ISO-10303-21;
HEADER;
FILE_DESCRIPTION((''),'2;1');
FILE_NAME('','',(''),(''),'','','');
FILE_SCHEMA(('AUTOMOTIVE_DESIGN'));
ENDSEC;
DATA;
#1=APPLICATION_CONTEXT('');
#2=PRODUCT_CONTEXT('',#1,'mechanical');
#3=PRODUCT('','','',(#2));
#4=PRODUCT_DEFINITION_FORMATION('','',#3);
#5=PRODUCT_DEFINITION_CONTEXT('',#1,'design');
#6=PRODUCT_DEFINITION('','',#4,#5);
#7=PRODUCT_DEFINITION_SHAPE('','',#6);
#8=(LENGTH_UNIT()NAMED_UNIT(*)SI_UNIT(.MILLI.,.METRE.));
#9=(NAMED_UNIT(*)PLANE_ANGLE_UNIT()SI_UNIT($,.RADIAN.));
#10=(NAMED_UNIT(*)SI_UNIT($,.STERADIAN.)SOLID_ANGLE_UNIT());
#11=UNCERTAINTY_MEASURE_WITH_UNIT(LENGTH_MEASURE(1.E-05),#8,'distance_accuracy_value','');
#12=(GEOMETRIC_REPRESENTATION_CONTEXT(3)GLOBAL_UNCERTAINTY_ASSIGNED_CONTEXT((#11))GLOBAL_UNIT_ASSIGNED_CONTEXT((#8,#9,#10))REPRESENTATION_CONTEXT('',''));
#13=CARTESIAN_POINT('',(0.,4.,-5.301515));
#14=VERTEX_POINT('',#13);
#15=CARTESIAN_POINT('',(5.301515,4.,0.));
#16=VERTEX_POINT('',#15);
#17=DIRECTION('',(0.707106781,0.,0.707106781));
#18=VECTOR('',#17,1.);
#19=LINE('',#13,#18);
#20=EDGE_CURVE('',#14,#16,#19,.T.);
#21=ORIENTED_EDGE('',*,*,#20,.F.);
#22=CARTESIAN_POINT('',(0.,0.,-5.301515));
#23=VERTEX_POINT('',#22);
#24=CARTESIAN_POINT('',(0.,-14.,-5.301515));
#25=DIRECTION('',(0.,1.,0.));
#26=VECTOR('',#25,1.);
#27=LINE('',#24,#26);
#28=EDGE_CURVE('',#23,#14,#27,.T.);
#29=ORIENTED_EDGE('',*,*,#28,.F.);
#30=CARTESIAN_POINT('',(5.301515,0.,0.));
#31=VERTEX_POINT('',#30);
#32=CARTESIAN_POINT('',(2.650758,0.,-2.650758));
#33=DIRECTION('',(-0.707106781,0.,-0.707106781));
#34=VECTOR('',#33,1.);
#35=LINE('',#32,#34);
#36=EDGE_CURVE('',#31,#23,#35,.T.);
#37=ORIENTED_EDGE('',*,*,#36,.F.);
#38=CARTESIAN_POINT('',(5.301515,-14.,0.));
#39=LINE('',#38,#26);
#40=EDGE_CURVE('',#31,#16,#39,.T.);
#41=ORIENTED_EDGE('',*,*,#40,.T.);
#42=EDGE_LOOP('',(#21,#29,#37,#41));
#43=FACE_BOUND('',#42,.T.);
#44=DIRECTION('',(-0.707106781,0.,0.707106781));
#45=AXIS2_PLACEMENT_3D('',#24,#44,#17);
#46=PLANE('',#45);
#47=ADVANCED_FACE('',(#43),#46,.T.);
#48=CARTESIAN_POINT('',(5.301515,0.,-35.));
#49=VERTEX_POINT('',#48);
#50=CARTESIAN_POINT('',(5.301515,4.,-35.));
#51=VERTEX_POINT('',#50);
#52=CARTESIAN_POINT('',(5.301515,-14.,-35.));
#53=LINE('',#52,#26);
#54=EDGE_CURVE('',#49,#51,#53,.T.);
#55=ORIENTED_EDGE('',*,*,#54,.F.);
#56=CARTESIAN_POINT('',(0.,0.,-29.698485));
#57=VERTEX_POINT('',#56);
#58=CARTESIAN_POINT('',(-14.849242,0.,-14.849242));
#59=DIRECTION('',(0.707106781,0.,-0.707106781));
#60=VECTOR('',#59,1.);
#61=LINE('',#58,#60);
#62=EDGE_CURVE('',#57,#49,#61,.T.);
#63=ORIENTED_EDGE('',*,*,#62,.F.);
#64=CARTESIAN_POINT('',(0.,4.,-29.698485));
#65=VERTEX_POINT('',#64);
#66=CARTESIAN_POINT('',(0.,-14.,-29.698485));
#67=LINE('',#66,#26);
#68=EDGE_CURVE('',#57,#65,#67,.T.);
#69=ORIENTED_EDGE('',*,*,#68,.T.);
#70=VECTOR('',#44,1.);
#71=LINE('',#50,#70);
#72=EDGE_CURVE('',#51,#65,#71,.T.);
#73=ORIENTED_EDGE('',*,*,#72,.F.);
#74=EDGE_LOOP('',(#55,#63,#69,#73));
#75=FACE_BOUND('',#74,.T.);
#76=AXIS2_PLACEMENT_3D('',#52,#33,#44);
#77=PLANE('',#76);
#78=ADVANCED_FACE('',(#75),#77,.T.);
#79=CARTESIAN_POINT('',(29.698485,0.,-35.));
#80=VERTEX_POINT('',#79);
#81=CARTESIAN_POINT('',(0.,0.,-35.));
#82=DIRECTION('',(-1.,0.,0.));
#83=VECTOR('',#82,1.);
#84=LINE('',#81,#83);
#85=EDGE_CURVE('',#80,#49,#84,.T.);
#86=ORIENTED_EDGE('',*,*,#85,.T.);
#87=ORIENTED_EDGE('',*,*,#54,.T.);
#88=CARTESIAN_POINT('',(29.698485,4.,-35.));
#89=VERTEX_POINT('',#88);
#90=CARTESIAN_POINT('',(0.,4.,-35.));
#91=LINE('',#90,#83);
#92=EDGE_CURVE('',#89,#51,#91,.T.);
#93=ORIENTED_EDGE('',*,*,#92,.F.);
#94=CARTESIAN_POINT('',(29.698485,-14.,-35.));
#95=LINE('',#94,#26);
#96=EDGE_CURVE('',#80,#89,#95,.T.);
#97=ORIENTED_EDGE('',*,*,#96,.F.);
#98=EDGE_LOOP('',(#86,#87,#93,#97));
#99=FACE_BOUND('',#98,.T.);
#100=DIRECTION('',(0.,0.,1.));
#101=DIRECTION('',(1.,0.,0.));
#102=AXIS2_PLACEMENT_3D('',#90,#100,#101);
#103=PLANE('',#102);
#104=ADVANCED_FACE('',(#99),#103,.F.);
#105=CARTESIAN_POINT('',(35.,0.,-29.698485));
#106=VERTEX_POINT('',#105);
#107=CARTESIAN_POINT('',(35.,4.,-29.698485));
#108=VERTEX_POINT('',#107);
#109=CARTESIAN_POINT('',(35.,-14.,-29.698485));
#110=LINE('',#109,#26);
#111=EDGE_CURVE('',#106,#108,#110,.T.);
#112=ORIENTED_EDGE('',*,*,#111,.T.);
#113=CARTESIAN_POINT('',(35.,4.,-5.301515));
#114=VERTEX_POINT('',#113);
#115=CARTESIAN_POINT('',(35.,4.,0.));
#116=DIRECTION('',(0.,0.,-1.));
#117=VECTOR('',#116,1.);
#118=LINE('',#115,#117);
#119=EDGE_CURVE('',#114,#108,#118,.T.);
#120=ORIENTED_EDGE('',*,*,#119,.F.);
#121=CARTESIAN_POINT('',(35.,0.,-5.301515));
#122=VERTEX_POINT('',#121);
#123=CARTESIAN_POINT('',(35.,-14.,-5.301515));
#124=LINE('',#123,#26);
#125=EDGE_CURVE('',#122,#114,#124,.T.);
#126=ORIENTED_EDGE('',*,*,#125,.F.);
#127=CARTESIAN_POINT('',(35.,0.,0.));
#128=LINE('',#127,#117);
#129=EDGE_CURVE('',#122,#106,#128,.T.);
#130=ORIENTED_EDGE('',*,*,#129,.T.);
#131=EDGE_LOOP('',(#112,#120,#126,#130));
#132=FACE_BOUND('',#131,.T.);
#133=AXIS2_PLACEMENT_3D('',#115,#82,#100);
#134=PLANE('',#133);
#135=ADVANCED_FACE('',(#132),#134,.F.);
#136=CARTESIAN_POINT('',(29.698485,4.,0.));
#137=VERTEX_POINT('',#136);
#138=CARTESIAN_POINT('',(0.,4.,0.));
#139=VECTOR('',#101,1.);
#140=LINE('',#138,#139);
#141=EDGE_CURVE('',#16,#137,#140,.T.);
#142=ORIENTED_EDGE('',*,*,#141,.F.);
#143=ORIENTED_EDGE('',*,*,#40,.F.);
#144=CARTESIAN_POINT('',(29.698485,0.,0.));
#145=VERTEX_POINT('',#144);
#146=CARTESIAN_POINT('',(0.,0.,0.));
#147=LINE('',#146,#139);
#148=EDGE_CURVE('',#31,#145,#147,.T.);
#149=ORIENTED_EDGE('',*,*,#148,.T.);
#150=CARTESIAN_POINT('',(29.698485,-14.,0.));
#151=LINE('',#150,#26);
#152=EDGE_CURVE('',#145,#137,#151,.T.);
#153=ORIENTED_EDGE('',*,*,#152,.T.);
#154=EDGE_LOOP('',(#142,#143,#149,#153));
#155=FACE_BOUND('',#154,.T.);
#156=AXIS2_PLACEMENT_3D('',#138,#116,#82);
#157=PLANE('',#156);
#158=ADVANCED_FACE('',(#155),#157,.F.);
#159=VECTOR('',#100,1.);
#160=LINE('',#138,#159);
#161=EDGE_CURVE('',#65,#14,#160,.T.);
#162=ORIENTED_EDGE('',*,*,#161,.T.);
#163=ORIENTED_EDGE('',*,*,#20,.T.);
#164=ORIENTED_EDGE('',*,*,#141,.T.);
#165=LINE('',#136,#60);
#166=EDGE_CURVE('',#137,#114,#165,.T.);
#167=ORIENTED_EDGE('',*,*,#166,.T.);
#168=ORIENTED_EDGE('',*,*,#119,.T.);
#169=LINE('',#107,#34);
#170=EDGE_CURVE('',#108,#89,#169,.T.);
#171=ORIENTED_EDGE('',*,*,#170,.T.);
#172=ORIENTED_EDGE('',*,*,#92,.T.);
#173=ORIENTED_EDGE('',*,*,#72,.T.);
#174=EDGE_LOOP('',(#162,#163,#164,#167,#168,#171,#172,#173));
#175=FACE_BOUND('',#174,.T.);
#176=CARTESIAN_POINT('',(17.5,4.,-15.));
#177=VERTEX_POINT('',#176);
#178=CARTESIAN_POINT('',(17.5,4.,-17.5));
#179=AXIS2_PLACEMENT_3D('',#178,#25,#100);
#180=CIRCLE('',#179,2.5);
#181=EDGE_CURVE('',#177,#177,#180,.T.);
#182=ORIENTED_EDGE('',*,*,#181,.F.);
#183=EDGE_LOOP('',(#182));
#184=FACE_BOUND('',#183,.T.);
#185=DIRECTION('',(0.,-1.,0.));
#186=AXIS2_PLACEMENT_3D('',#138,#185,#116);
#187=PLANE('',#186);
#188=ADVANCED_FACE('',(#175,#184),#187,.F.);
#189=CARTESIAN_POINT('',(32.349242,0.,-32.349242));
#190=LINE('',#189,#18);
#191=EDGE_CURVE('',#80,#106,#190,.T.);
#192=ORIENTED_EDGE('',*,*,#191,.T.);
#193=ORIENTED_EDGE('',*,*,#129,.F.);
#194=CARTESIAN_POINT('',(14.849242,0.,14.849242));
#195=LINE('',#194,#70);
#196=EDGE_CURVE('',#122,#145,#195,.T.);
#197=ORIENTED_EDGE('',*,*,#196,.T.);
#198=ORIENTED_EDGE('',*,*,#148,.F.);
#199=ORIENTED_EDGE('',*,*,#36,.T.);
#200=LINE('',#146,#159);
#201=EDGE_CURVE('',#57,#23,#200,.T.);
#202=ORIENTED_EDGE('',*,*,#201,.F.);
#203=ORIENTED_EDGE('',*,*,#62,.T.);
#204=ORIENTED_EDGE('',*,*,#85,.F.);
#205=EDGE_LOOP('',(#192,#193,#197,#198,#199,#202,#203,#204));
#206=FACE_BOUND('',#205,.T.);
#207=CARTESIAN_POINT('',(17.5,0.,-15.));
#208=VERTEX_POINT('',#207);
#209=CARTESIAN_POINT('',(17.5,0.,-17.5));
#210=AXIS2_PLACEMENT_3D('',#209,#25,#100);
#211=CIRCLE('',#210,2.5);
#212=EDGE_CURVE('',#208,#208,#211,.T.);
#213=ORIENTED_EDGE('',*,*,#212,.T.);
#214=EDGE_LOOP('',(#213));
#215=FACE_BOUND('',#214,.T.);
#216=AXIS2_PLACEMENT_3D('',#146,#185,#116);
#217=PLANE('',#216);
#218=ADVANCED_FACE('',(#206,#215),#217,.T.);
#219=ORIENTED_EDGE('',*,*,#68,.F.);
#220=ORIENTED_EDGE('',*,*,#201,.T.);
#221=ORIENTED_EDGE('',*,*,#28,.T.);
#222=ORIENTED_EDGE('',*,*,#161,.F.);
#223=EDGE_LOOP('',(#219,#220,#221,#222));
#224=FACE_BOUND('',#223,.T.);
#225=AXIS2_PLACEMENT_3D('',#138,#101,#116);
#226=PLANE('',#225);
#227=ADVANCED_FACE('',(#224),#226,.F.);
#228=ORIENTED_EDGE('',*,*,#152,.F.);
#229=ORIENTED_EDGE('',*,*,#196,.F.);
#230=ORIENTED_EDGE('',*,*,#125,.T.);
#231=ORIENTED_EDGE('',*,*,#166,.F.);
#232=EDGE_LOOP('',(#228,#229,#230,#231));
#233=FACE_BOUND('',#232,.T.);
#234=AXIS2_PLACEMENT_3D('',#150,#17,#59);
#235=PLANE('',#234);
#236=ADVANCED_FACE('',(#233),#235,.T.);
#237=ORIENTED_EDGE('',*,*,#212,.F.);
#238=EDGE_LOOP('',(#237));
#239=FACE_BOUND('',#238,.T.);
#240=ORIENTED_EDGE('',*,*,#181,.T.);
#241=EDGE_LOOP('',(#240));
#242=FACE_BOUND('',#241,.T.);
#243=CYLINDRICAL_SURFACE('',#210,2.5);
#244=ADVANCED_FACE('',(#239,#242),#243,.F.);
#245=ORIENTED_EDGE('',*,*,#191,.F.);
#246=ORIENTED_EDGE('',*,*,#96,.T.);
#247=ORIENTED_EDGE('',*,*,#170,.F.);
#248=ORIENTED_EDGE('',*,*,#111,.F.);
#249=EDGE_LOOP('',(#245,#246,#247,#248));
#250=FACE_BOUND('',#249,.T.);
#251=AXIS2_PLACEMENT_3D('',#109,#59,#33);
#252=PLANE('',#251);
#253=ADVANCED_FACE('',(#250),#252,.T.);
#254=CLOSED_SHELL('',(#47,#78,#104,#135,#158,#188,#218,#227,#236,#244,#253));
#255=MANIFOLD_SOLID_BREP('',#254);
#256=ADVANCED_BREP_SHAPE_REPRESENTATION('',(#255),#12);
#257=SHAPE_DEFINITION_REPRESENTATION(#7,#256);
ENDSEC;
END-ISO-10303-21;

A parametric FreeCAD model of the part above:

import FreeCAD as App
import Part
import Sketcher

V = App.Vector


def add_polygon(sketch, points):
    """Adds a closed chain of lines whose ends are joined by coincident constraints."""
    first, n = sketch.GeometryCount, len(points)
    for a, b in zip(points, points[1:] + points[:1]):
        sketch.addGeometry(Part.LineSegment(App.Vector(*a, 0), App.Vector(*b, 0)), False)
    for i in range(n):
        sketch.addConstraint(Sketcher.Constraint("Coincident", first + i, 2, first + (i + 1) % n, 1))

doc = App.newDocument("Part")
body = doc.addObject("PartDesign::Body", "Body")

# Sketch on XZ plane
sketch1 = doc.addObject("Sketcher::SketchObject", "Sketch")
body.addObject(sketch1)
sketch1.AttachmentSupport = (doc.XZ_Plane, [""])
sketch1.MapMode = "FlatFace"
add_polygon(sketch1, [(0, -35), (0, 0), (35, 0), (35, -35)])  # lines 0-3
sketch1.addConstraint([
    Sketcher.Constraint("Vertical", 0),
    Sketcher.Constraint("Horizontal", 1),
    Sketcher.Constraint("Vertical", 2),
    Sketcher.Constraint("Horizontal", 3),
    Sketcher.Constraint("Coincident", 0, 2, -1, 1),
    Sketcher.Constraint("Equal", 3, 0),
    Sketcher.Constraint("DistanceX", 1, 1, 1, 2, 35.0),
])
pad1 = doc.addObject("PartDesign::Pad", "Pad")
body.addObject(pad1)
pad1.Profile = sketch1
pad1.Length = 4
pad1.Reversed = True

# Sketch on XZ plane
sketch2 = doc.addObject("Sketcher::SketchObject", "Sketch001")
body.addObject(sketch2)
sketch2.AttachmentSupport = (doc.XZ_Plane, [""])
sketch2.MapMode = "FlatFace"
sketch2.AttachmentOffset = App.Placement(V(0, 0, -4), App.Rotation())
add_polygon(sketch2, [(-6, -41), (-6, 6), (41, 6), (41, -41)])  # lines 0-3
add_polygon(sketch2, [(0, -30), (5, -35), (30, -35), (35, -30), (35, -5), (30, 0), (5, 0), (0, -5)])  # lines 4-11
sketch2.addConstraint([
    Sketcher.Constraint("Vertical", 0),
    Sketcher.Constraint("Horizontal", 1),
    Sketcher.Constraint("Vertical", 2),
    Sketcher.Constraint("Horizontal", 3),
    Sketcher.Constraint("Horizontal", 5),
    Sketcher.Constraint("Vertical", 7),
    Sketcher.Constraint("Horizontal", 9),
    Sketcher.Constraint("Vertical", 11),
    Sketcher.Constraint("PointOnObject", 8, 2, -1),
    Sketcher.Constraint("PointOnObject", 10, 2, -2),
    Sketcher.Constraint("Perpendicular", 4, 6),
    Sketcher.Constraint("Perpendicular", 6, 8),
    Sketcher.Constraint("Perpendicular", 8, 10),
    Sketcher.Constraint("Horizontal", 7, 2, 10, 2),
    Sketcher.Constraint("Horizontal", 6, 2, 11, 2),
    Sketcher.Constraint("Vertical", 5, 2, 8, 2),
    Sketcher.Constraint("Vertical", 4, 2, 9, 2),
    Sketcher.Constraint("Equal", 3, 0),
    Sketcher.Constraint("Equal", 9, 7),
    Sketcher.Constraint("DistanceY", 4, 2, -1, 1, 35.0),
    Sketcher.Constraint("DistanceX", 1, 1, 1, 2, 46.932),
    Sketcher.Constraint("DistanceX", 0, 2, -1, 1, 5.966),
    Sketcher.Constraint("DistanceY", -1, 1, 0, 2, 5.966),
    Sketcher.Constraint("DistanceX", 5, 1, 5, 2, 24.39697),
])
pocket1 = doc.addObject("PartDesign::Pocket", "Pocket")
body.addObject(pocket1)
pocket1.Profile = sketch2
pocket1.Length = 18
pocket1.Reversed = True

# Sketch on XZ plane
sketch3 = doc.addObject("Sketcher::SketchObject", "Sketch002")
body.addObject(sketch3)
sketch3.AttachmentSupport = (doc.XZ_Plane, [""])
sketch3.MapMode = "FlatFace"
sketch3.AttachmentOffset = App.Placement(V(0, 0, -4), App.Rotation())
sketch3.addGeometry(Part.Circle(V(17.5, -17.5, 0), V(0, 0, 1), 2.5), False)
sketch3.addConstraint([
    Sketcher.Constraint("Diameter", 0, 5.0),
    Sketcher.Constraint("DistanceX", -1, 1, 0, 3, 17.5),
    Sketcher.Constraint("DistanceY", 0, 3, -1, 1, 17.5),
])
pocket2 = doc.addObject("PartDesign::Pocket", "Pocket001")
body.addObject(pocket2)
pocket2.Profile = sketch3
pocket2.Type = "ThroughAll"
pocket2.Reversed = True

doc.recompute()
